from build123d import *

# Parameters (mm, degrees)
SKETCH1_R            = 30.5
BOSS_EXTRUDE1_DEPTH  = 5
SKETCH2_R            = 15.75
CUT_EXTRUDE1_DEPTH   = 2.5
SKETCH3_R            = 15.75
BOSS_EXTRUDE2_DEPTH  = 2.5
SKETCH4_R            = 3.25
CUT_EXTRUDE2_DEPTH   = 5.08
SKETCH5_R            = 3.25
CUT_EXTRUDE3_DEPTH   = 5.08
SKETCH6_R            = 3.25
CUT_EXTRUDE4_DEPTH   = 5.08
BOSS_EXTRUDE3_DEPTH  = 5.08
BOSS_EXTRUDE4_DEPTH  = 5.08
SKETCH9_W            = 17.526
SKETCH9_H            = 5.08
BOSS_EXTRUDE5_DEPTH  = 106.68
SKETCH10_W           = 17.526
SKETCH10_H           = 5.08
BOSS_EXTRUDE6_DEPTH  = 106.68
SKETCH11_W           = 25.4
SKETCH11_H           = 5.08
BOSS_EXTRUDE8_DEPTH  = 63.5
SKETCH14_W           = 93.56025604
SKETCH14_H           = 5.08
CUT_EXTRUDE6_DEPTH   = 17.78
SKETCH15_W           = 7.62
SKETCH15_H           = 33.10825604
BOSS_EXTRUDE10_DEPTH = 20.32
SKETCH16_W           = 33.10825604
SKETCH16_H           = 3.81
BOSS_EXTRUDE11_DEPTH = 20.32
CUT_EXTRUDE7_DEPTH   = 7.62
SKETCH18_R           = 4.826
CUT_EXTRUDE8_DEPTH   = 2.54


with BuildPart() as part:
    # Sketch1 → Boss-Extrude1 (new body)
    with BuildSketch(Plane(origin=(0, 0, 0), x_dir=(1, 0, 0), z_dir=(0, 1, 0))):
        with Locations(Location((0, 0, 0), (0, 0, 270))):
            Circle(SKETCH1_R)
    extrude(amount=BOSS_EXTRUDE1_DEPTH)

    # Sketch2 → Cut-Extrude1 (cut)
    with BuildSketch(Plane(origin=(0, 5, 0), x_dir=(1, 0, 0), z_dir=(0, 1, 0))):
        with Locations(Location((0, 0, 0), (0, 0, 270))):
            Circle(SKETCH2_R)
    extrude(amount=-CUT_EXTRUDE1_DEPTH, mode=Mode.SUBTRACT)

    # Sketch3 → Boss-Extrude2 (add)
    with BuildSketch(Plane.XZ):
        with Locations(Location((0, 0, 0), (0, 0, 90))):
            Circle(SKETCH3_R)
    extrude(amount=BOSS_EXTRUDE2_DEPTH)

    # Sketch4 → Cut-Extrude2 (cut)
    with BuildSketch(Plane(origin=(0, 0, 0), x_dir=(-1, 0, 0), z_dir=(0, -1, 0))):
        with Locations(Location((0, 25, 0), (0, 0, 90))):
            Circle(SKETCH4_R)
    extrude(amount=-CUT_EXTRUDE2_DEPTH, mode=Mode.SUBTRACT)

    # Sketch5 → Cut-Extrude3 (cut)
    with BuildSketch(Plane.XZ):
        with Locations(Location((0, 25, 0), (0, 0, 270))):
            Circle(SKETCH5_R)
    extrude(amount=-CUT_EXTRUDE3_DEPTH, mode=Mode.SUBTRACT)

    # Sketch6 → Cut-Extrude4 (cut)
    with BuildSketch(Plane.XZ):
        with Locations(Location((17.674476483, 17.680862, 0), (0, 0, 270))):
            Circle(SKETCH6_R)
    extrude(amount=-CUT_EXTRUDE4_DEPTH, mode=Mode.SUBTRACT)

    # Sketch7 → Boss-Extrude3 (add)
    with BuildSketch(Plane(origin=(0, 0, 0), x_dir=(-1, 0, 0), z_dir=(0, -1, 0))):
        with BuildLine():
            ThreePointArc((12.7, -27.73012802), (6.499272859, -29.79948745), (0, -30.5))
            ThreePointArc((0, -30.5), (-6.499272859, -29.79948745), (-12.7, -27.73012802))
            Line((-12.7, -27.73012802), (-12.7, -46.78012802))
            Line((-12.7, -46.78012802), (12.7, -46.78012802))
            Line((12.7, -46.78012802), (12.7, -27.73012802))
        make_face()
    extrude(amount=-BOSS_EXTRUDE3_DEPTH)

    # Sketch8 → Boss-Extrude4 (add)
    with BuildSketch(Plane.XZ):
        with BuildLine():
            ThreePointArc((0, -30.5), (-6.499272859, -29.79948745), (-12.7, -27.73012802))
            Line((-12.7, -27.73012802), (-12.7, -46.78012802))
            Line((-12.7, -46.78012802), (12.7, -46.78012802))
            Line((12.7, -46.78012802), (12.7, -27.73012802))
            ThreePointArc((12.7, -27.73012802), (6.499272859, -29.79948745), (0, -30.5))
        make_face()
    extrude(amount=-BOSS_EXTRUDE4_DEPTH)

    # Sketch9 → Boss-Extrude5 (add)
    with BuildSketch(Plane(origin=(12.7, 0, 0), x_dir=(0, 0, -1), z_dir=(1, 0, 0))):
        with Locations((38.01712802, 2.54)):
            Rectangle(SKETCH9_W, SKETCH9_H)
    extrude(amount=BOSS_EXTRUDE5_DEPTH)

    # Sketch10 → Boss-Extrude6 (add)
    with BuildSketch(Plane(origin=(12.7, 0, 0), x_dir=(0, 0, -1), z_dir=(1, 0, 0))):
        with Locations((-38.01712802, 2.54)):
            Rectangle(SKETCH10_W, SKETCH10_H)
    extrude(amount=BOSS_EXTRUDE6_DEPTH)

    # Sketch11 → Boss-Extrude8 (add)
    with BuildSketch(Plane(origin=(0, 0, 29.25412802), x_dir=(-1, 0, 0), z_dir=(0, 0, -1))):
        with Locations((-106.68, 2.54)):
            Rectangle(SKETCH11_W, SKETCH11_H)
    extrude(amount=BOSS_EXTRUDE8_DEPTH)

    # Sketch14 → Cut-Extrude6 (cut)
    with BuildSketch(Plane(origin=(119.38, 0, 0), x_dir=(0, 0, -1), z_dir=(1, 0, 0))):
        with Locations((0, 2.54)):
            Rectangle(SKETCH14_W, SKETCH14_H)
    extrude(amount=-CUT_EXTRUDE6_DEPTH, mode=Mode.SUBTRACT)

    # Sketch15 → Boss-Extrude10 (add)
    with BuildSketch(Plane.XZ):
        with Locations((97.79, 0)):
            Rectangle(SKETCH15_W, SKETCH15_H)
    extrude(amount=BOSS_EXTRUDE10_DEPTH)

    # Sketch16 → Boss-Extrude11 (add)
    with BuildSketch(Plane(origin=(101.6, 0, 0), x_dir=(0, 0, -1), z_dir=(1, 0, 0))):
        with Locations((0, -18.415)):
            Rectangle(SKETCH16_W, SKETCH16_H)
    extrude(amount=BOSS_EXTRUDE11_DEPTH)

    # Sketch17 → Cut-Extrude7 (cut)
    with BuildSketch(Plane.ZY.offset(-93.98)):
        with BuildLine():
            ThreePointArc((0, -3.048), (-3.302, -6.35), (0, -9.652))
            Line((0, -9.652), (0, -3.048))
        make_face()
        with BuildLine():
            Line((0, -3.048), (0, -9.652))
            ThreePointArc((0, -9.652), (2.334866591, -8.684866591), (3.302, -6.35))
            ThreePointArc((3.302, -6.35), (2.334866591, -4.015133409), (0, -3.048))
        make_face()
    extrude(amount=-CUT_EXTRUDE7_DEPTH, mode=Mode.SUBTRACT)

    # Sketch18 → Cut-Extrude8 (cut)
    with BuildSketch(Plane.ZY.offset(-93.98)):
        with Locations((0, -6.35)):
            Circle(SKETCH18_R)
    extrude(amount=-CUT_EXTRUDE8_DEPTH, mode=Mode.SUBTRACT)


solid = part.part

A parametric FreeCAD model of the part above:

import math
import FreeCAD as App
import Part
import Sketcher
Q = App.Units.Quantity

doc = App.newDocument("Part")
params = doc.addObject("Spreadsheet::Sheet", "Params")
for row, (alias, value) in enumerate([
    ("pad1_length", "5 mm"),
    ("pocket1_length", "2.5 mm"),
    ("pad2_length", "2.5 mm"),
    ("pocket2_length", "0.2 in"),
    ("pocket3_length", "0.2 in"),
    ("pocket4_length", "0.2 in"),
    ("sketch7_width", "1 in"),
    ("sketch7_height", "0.75 in"),
    ("pad3_length", "0.2 in"),
    ("sketch8_width", "1 in"),
    ("sketch8_height", "0.75 in"),
    ("pad4_length", "0.2 in"),
    ("sketch9_width", "0.2 in"),
    ("sketch9_height", "0.69 in"),
    ("pad5_length", "4.2 in"),
    ("sketch10_width", "0.2 in"),
    ("sketch10_height", "0.69 in"),
    ("pad6_length", "4.2 in"),
    ("sketch11_width", "1 in"),
    ("sketch11_height", "0.2 in"),
    ("pad7_length", "2.5 in"),
    ("sketch12_width", "0.2 in"),
    ("pocket5_length", "0.7 in"),
    ("sketch13_width", "0.3 in"),
    ("pad8_length", "0.8 in"),
    ("sketch14_width", "0.15 in"),
    ("pad9_length", "0.8 in"),
    ("sketch15_radius", "0.13 in"),
    ("pocket6_length", "0.3 in"),
    ("sketch16_diameter", "0.38 in"),
    ("pocket7_length", "0.1 in"),
], start=1):
    params.set(f"A{row}", alias)
    params.set(f"B{row}", "=" + value)
    params.setAlias(f"B{row}", alias)

body = doc.addObject("PartDesign::Body", "Body")

# Sketch on XZ plane
sketch1 = body.newObject("Sketcher::SketchObject", "Sketch")
sketch1.AttachmentSupport = (doc.getObject("XZ_Plane"), [""])
sketch1.MapMode = "FlatFace"
sketch1.addGeometry(Part.Circle(App.Vector(0, 0, 0), App.Vector(0, 0, 1), 30.5), False)
sketch1.addConstraint([
    Sketcher.Constraint("Coincident", 0, 3, -1, 1),
    Sketcher.Constraint("Diameter", 0, Q("61 mm")),
])
pad1 = body.newObject("PartDesign::Pad", "Pad")
pad1.Profile = sketch1
pad1.setExpression("Length", "Params.pad1_length")
pad1.Reversed = True

# Sketch on XZ plane
sketch2 = body.newObject("Sketcher::SketchObject", "Sketch001")
sketch2.AttachmentSupport = (doc.getObject("XZ_Plane"), [""])
sketch2.MapMode = "FlatFace"
sketch2.AttachmentOffset = App.Placement(App.Vector(0, 0, -5), App.Rotation())
sketch2.addGeometry(Part.Circle(App.Vector(0, 0, 0), App.Vector(0, 0, 1), 15.75), False)
sketch2.addConstraint([
    Sketcher.Constraint("Coincident", 0, 3, -1, 1),
    Sketcher.Constraint("Diameter", 0, Q("31.5 mm")),
])
pocket1 = body.newObject("PartDesign::Pocket", "Pocket")
pocket1.Profile = sketch2
pocket1.setExpression("Length", "Params.pocket1_length")
pocket1.Reversed = True

# Sketch on XZ plane
sketch3 = body.newObject("Sketcher::SketchObject", "Sketch002")
sketch3.AttachmentSupport = (doc.getObject("XZ_Plane"), [""])
sketch3.MapMode = "FlatFace"
sketch3.addGeometry(Part.Circle(App.Vector(0, 0, 0), App.Vector(0, 0, 1), 15.75), False)
sketch3.addConstraint([
    Sketcher.Constraint("Coincident", 0, 3, -1, 1),
    Sketcher.Constraint("Diameter", 0, Q("31.5 mm")),
])
pad2 = body.newObject("PartDesign::Pad", "Pad001")
pad2.Profile = sketch3
pad2.setExpression("Length", "Params.pad2_length")

# Sketch on XZ plane
sketch4 = body.newObject("Sketcher::SketchObject", "Sketch003")
sketch4.AttachmentSupport = (doc.getObject("XZ_Plane"), [""])
sketch4.MapMode = "FlatFace"
sketch4.addGeometry(Part.Circle(App.Vector(0, -25, 0), App.Vector(0, 0, 1), 3.25), False)
sketch4.addConstraint([
    Sketcher.Constraint("PointOnObject", 0, 3, -2),
    Sketcher.Constraint("Diameter", 0, Q("6.5 mm")),
    Sketcher.Constraint("DistanceY", 0, 3, -1, 1, Q("25 mm")),
])
pocket2 = body.newObject("PartDesign::Pocket", "Pocket001")
pocket2.Profile = sketch4
pocket2.setExpression("Length", "Params.pocket2_length")

# Sketch on XZ plane
sketch5 = body.newObject("Sketcher::SketchObject", "Sketch004")
sketch5.AttachmentSupport = (doc.getObject("XZ_Plane"), [""])
sketch5.MapMode = "FlatFace"
sketch5.addGeometry(Part.Circle(App.Vector(0, 25, 0), App.Vector(0, 0, 1), 3.25), False)
sketch5.addConstraint([
    Sketcher.Constraint("PointOnObject", 0, 3, -2),
    Sketcher.Constraint("Diameter", 0, Q("6.5 mm")),
    Sketcher.Constraint("DistanceY", -1, 1, 0, 3, Q("25 mm")),
])
pocket3 = body.newObject("PartDesign::Pocket", "Pocket002")
pocket3.Profile = sketch5
pocket3.setExpression("Length", "Params.pocket3_length")

# Sketch on XZ plane
sketch6 = body.newObject("Sketcher::SketchObject", "Sketch005")
sketch6.AttachmentSupport = (doc.getObject("XZ_Plane"), [""])
sketch6.MapMode = "FlatFace"
sketch6.addGeometry(Part.Circle(App.Vector(17.674476, 17.680862, 0), App.Vector(0, 0, 1), 3.25), False)
sketch6.addConstraint([
    Sketcher.Constraint("Diameter", 0, Q("6.5 mm")),
    Sketcher.Constraint("DistanceX", -1, 1, 0, 3, Q("17.674476 mm")),
    Sketcher.Constraint("DistanceY", -1, 1, 0, 3, Q("17.680862 mm")),
])
pocket4 = body.newObject("PartDesign::Pocket", "Pocket003")
pocket4.Profile = sketch6
pocket4.setExpression("Length", "Params.pocket4_length")

# Sketch on XZ plane
sketch7 = body.newObject("Sketcher::SketchObject", "Sketch006")
sketch7.AttachmentSupport = (doc.getObject("XZ_Plane"), [""])
sketch7.MapMode = "FlatFace"
sketch7.addGeometry([
    Part.ArcOfCircle(Part.Circle(App.Vector(0, 0, 0), App.Vector(0, 0, 1), 30.5), math.radians(90), math.radians(114.607099)),  # 0
    Part.ArcOfCircle(Part.Circle(App.Vector(0, 0, 0), App.Vector(0, 0, 1), 30.5), math.radians(65.392901), math.radians(90)),  # 1
    Part.LineSegment(App.Vector(12.7, 27.730128, 0), App.Vector(12.7, 46.780128, 0)),  # 2
    Part.LineSegment(App.Vector(12.7, 46.780128, 0), App.Vector(-12.7, 46.780128, 0)),  # 3
    Part.LineSegment(App.Vector(-12.7, 46.780128, 0), App.Vector(-12.7, 27.730128, 0)),  # 4
], False)
sketch7.addConstraint([
    Sketcher.Constraint("Tangent", 0, 1, 1, 2),
    Sketcher.Constraint("Coincident", 1, 1, 2, 1),
    Sketcher.Constraint("Coincident", 2, 2, 3, 1),
    Sketcher.Constraint("Coincident", 3, 2, 4, 1),
    Sketcher.Constraint("Coincident", 4, 2, 0, 2),
    Sketcher.Constraint("Vertical", 2),
    Sketcher.Constraint("Horizontal", 3),
    Sketcher.Constraint("Vertical", 4),
    Sketcher.Constraint("Coincident", 0, 3, -1, 1),
    Sketcher.Constraint("Equal", 0, 1),
    Sketcher.Constraint("PointOnObject", 0, 1, -2),
    Sketcher.Constraint("Horizontal", 1, 1, 4, 2),
    Sketcher.Constraint("DistanceX", 3, 2, 3, 1, Q("1 in")),
    Sketcher.Constraint("DistanceY", 2, 1, 2, 2, Q("0.75 in")),
    Sketcher.Constraint("Radius", 0, Q("30.5 mm")),
])
sketch7.setExpression("Constraints[12]", "Params.sketch7_width")
sketch7.setExpression("Constraints[13]", "Params.sketch7_height")
pad3 = body.newObject("PartDesign::Pad", "Pad002")
pad3.Profile = sketch7
pad3.setExpression("Length", "Params.pad3_length")
pad3.Reversed = True

# Sketch on XZ plane
sketch8 = body.newObject("Sketcher::SketchObject", "Sketch007")
sketch8.AttachmentSupport = (doc.getObject("XZ_Plane"), [""])
sketch8.MapMode = "FlatFace"
sketch8.addGeometry([
    Part.ArcOfCircle(Part.Circle(App.Vector(0, 0, 0), App.Vector(0, 0, 1), 30.5), math.radians(-114.607099), math.radians(-90)),  # 0
    Part.LineSegment(App.Vector(-12.7, -27.730128, 0), App.Vector(-12.7, -46.780128, 0)),  # 1
    Part.LineSegment(App.Vector(-12.7, -46.780128, 0), App.Vector(12.7, -46.780128, 0)),  # 2
    Part.LineSegment(App.Vector(12.7, -46.780128, 0), App.Vector(12.7, -27.730128, 0)),  # 3
    Part.ArcOfCircle(Part.Circle(App.Vector(0, 0, 0), App.Vector(0, 0, 1), 30.5), math.radians(-90), math.radians(-65.392901)),  # 4
], False)
sketch8.addConstraint([
    Sketcher.Constraint("Coincident", 0, 1, 1, 1),
    Sketcher.Constraint("Coincident", 1, 2, 2, 1),
    Sketcher.Constraint("Coincident", 2, 2, 3, 1),
    Sketcher.Constraint("Coincident", 3, 2, 4, 2),
    Sketcher.Constraint("Tangent", 4, 1, 0, 2),
    Sketcher.Constraint("Vertical", 1),
    Sketcher.Constraint("Horizontal", 2),
    Sketcher.Constraint("Vertical", 3),
    Sketcher.Constraint("Coincident", 0, 3, -1, 1),
    Sketcher.Constraint("Equal", 0, 4),
    Sketcher.Constraint("PointOnObject", 4, 1, -2),
    Sketcher.Constraint("Horizontal", 0, 1, 3, 2),
    Sketcher.Constraint("DistanceX", 2, 1, 2, 2, Q("1 in")),
    Sketcher.Constraint("DistanceY", 1, 2, 1, 1, Q("0.75 in")),
    Sketcher.Constraint("Radius", 0, Q("30.5 mm")),
])
sketch8.setExpression("Constraints[12]", "Params.sketch8_width")
sketch8.setExpression("Constraints[13]", "Params.sketch8_height")
pad4 = body.newObject("PartDesign::Pad", "Pad003")
pad4.Profile = sketch8
pad4.setExpression("Length", "Params.pad4_length")
pad4.Reversed = True

# Sketch on YZ plane
sketch9 = body.newObject("Sketcher::SketchObject", "Sketch008")
sketch9.AttachmentSupport = (doc.getObject("YZ_Plane"), [""])
sketch9.MapMode = "FlatFace"
sketch9.AttachmentOffset = App.Placement(App.Vector(0, 0, 0.5 * 25.4), App.Rotation())
sketch9.addGeometry([
    Part.LineSegment(App.Vector(5.08, -29.254128, 0), App.Vector(0, -29.254128, 0)),
    Part.LineSegment(App.Vector(0, -29.254128, 0), App.Vector(0, -46.780128, 0)),
    Part.LineSegment(App.Vector(0, -46.780128, 0), App.Vector(5.08, -46.780128, 0)),
    Part.LineSegment(App.Vector(5.08, -46.780128, 0), App.Vector(5.08, -29.254128, 0)),
], False)
sketch9.addConstraint([
    Sketcher.Constraint("Coincident", 0, 2, 1, 1),
    Sketcher.Constraint("Coincident", 1, 2, 2, 1),
    Sketcher.Constraint("Coincident", 2, 2, 3, 1),
    Sketcher.Constraint("Coincident", 3, 2, 0, 1),
    Sketcher.Constraint("Horizontal", 0),
    Sketcher.Constraint("Vertical", 1),
    Sketcher.Constraint("Horizontal", 2),
    Sketcher.Constraint("Vertical", 3),
    Sketcher.Constraint("PointOnObject", 0, 2, -2),
    Sketcher.Constraint("DistanceX", 0, 2, 0, 1, Q("0.2 in")),
    Sketcher.Constraint("DistanceY", 1, 2, 1, 1, Q("0.69 in")),
    Sketcher.Constraint("DistanceY", 0, 2, -1, 1, Q("29.254128 mm")),
])
sketch9.setExpression("Constraints[9]", "Params.sketch9_width")
sketch9.setExpression("Constraints[10]", "Params.sketch9_height")
pad5 = body.newObject("PartDesign::Pad", "Pad004")
pad5.Profile = sketch9
pad5.setExpression("Length", "Params.pad5_length")

# Sketch on YZ plane
sketch10 = body.newObject("Sketcher::SketchObject", "Sketch009")
sketch10.AttachmentSupport = (doc.getObject("YZ_Plane"), [""])
sketch10.MapMode = "FlatFace"
sketch10.AttachmentOffset = App.Placement(App.Vector(0, 0, 0.5 * 25.4), App.Rotation())
sketch10.addGeometry([
    Part.LineSegment(App.Vector(5.08, 46.780128, 0), App.Vector(0, 46.780128, 0)),
    Part.LineSegment(App.Vector(0, 46.780128, 0), App.Vector(0, 29.254128, 0)),
    Part.LineSegment(App.Vector(0, 29.254128, 0), App.Vector(5.08, 29.254128, 0)),
    Part.LineSegment(App.Vector(5.08, 29.254128, 0), App.Vector(5.08, 46.780128, 0)),
], False)
sketch10.addConstraint([
    Sketcher.Constraint("Coincident", 0, 2, 1, 1),
    Sketcher.Constraint("Coincident", 1, 2, 2, 1),
    Sketcher.Constraint("Coincident", 2, 2, 3, 1),
    Sketcher.Constraint("Coincident", 3, 2, 0, 1),
    Sketcher.Constraint("Horizontal", 0),
    Sketcher.Constraint("Vertical", 1),
    Sketcher.Constraint("Horizontal", 2),
    Sketcher.Constraint("Vertical", 3),
    Sketcher.Constraint("PointOnObject", 0, 2, -2),
    Sketcher.Constraint("DistanceX", 0, 2, 0, 1, Q("0.2 in")),
    Sketcher.Constraint("DistanceY", 1, 2, 1, 1, Q("0.69 in")),
    Sketcher.Constraint("DistanceY", -1, 1, 0, 2, Q("46.780128 mm")),
])
sketch10.setExpression("Constraints[9]", "Params.sketch10_width")
sketch10.setExpression("Constraints[10]", "Params.sketch10_height")
pad6 = body.newObject("PartDesign::Pad", "Pad005")
pad6.Profile = sketch10
pad6.setExpression("Length", "Params.pad6_length")

# Sketch on XY plane
sketch11 = body.newObject("Sketcher::SketchObject", "Sketch010")
sketch11.AttachmentSupport = (doc.getObject("XY_Plane"), [""])
sketch11.MapMode = "FlatFace"
sketch11.AttachmentOffset = App.Placement(App.Vector(0, 0, 29.254128), App.Rotation())
sketch11.addGeometry([
    Part.LineSegment(App.Vector(119.38, 5.08, 0), App.Vector(119.38, 0, 0)),
    Part.LineSegment(App.Vector(119.38, 0, 0), App.Vector(93.98, 0, 0)),
    Part.LineSegment(App.Vector(93.98, 0, 0), App.Vector(93.98, 5.08, 0)),
    Part.LineSegment(App.Vector(93.98, 5.08, 0), App.Vector(119.38, 5.08, 0)),
], False)
sketch11.addConstraint([
    Sketcher.Constraint("Coincident", 0, 2, 1, 1),
    Sketcher.Constraint("Coincident", 1, 2, 2, 1),
    Sketcher.Constraint("Coincident", 2, 2, 3, 1),
    Sketcher.Constraint("Coincident", 3, 2, 0, 1),
    Sketcher.Constraint("Vertical", 0),
    Sketcher.Constraint("Horizontal", 1),
    Sketcher.Constraint("Vertical", 2),
    Sketcher.Constraint("Horizontal", 3),
    Sketcher.Constraint("PointOnObject", 0, 2, -1),
    Sketcher.Constraint("DistanceX", 1, 2, 1, 1, Q("1 in")),
    Sketcher.Constraint("DistanceY", 0, 2, 0, 1, Q("0.2 in")),
    Sketcher.Constraint("DistanceX", -1, 1, 0, 2, Q("4.7 in")),
])
sketch11.setExpression("Constraints[9]", "Params.sketch11_width")
sketch11.setExpression("Constraints[10]", "Params.sketch11_height")
pad7 = body.newObject("PartDesign::Pad", "Pad006")
pad7.Profile = sketch11
pad7.setExpression("Length", "Params.pad7_length")
pad7.Reversed = True

# Sketch on YZ plane
sketch12 = body.newObject("Sketcher::SketchObject", "Sketch011")
sketch12.AttachmentSupport = (doc.getObject("YZ_Plane"), [""])
sketch12.MapMode = "FlatFace"
sketch12.AttachmentOffset = App.Placement(App.Vector(0, 0, 4.7 * 25.4), App.Rotation())
sketch12.addGeometry([
    Part.LineSegment(App.Vector(5.08, 46.780128, 0), App.Vector(0, 46.780128, 0)),
    Part.LineSegment(App.Vector(0, 46.780128, 0), App.Vector(0, -46.780128, 0)),
    Part.LineSegment(App.Vector(0, -46.780128, 0), App.Vector(5.08, -46.780128, 0)),
    Part.LineSegment(App.Vector(5.08, -46.780128, 0), App.Vector(5.08, 46.780128, 0)),
], False)
sketch12.addConstraint([
    Sketcher.Constraint("Coincident", 0, 2, 1, 1),
    Sketcher.Constraint("Coincident", 1, 2, 2, 1),
    Sketcher.Constraint("Coincident", 2, 2, 3, 1),
    Sketcher.Constraint("Coincident", 3, 2, 0, 1),
    Sketcher.Constraint("Horizontal", 0),
    Sketcher.Constraint("Vertical", 1),
    Sketcher.Constraint("Horizontal", 2),
    Sketcher.Constraint("Vertical", 3),
    Sketcher.Constraint("Symmetric", 0, 2, 1, 2, -1, 1),
    Sketcher.Constraint("DistanceX", 0, 2, 0, 1, Q("0.2 in")),
    Sketcher.Constraint("DistanceY", 1, 2, 1, 1, Q("93.560256 mm")),
])
sketch12.setExpression("Constraints[9]", "Params.sketch12_width")
pocket5 = body.newObject("PartDesign::Pocket", "Pocket004")
pocket5.Profile = sketch12
pocket5.setExpression("Length", "Params.pocket5_length")

# Sketch on XZ plane
sketch13 = body.newObject("Sketcher::SketchObject", "Sketch012")
sketch13.AttachmentSupport = (doc.getObject("XZ_Plane"), [""])
sketch13.MapMode = "FlatFace"
sketch13.addGeometry([
    Part.LineSegment(App.Vector(93.98, 16.554128, 0), App.Vector(93.98, -16.554128, 0)),
    Part.LineSegment(App.Vector(93.98, -16.554128, 0), App.Vector(101.6, -16.554128, 0)),
    Part.LineSegment(App.Vector(101.6, -16.554128, 0), App.Vector(101.6, 16.554128, 0)),
    Part.LineSegment(App.Vector(101.6, 16.554128, 0), App.Vector(93.98, 16.554128, 0)),
], False)
sketch13.addConstraint([
    Sketcher.Constraint("Coincident", 0, 2, 1, 1),
    Sketcher.Constraint("Coincident", 1, 2, 2, 1),
    Sketcher.Constraint("Coincident", 2, 2, 3, 1),
    Sketcher.Constraint("Coincident", 3, 2, 0, 1),
    Sketcher.Constraint("Vertical", 0),
    Sketcher.Constraint("Horizontal", 1),
    Sketcher.Constraint("Vertical", 2),
    Sketcher.Constraint("Horizontal", 3),
    Sketcher.Constraint("DistanceX", 1, 1, 1, 2, Q("0.3 in")),
    Sketcher.Constraint("DistanceX", -1, 1, 1, 2, Q("4 in")),
    Sketcher.Constraint("DistanceY", 0, 2, 0, 1, Q("33.108256 mm")),
    Sketcher.Constraint("DistanceY", 0, 2, -1, 1, Q("16.554128 mm")),
])
sketch13.setExpression("Constraints[8]", "Params.sketch13_width")
pad8 = body.newObject("PartDesign::Pad", "Pad007")
pad8.Profile = sketch13
pad8.setExpression("Length", "Params.pad8_length")

# Sketch on YZ plane
sketch14 = body.newObject("Sketcher::SketchObject", "Sketch013")
sketch14.AttachmentSupport = (doc.getObject("YZ_Plane"), [""])
sketch14.MapMode = "FlatFace"
sketch14.AttachmentOffset = App.Placement(App.Vector(0, 0, 4 * 25.4), App.Rotation())
sketch14.addGeometry([
    Part.LineSegment(App.Vector(-16.51, 16.554128, 0), App.Vector(-20.32, 16.554128, 0)),
    Part.LineSegment(App.Vector(-20.32, 16.554128, 0), App.Vector(-20.32, -16.554128, 0)),
    Part.LineSegment(App.Vector(-20.32, -16.554128, 0), App.Vector(-16.51, -16.554128, 0)),
    Part.LineSegment(App.Vector(-16.51, -16.554128, 0), App.Vector(-16.51, 16.554128, 0)),
], False)
sketch14.addConstraint([
    Sketcher.Constraint("Coincident", 0, 2, 1, 1),
    Sketcher.Constraint("Coincident", 1, 2, 2, 1),
    Sketcher.Constraint("Coincident", 2, 2, 3, 1),
    Sketcher.Constraint("Coincident", 3, 2, 0, 1),
    Sketcher.Constraint("Horizontal", 0),
    Sketcher.Constraint("Vertical", 1),
    Sketcher.Constraint("Horizontal", 2),
    Sketcher.Constraint("Vertical", 3),
    Sketcher.Constraint("DistanceX", 0, 2, 0, 1, Q("0.15 in")),
    Sketcher.Constraint("DistanceX", 0, 2, -1, 1, Q("0.8 in")),
    Sketcher.Constraint("DistanceY", 1, 2, 1, 1, Q("33.108256 mm")),
    Sketcher.Constraint("DistanceY", -1, 1, 0, 2, Q("16.554128 mm")),
])
sketch14.setExpression("Constraints[8]", "Params.sketch14_width")
pad9 = body.newObject("PartDesign::Pad", "Pad008")
pad9.Profile = sketch14
pad9.setExpression("Length", "Params.pad9_length")

# Sketch on YZ plane
sketch15 = body.newObject("Sketcher::SketchObject", "Sketch014")
sketch15.AttachmentSupport = (doc.getObject("YZ_Plane"), [""])
sketch15.MapMode = "FlatFace"
sketch15.AttachmentOffset = App.Placement(App.Vector(0, 0, 3.7 * 25.4), App.Rotation())
sketch15.addGeometry([
    Part.ArcOfCircle(Part.Circle(App.Vector(-6.35, 0, 0), App.Vector(0, 0, 1), 3.302), math.radians(180), math.radians(360)),
    Part.ArcOfCircle(Part.Circle(App.Vector(-6.35, 0, 0), App.Vector(0, 0, 1), 3.302), math.radians(90), math.radians(180)),
    Part.ArcOfCircle(Part.Circle(App.Vector(-6.35, 0, 0), App.Vector(0, 0, 1), 3.302), math.radians(0), math.radians(90)),
], False)
sketch15.addConstraint([
    Sketcher.Constraint("Tangent", 0, 1, 1, 2),
    Sketcher.Constraint("Tangent", 1, 1, 2, 2),
    Sketcher.Constraint("Tangent", 2, 1, 0, 2),
    Sketcher.Constraint("PointOnObject", 0, 3, -1),
    Sketcher.Constraint("PointOnObject", 0, 1, -1),
    Sketcher.Constraint("PointOnObject", 2, 1, -1),
    Sketcher.Constraint("Vertical", 2, 3, 1, 1),
    Sketcher.Constraint("Radius", 0, Q("0.13 in")),
    Sketcher.Constraint("DistanceX", 0, 3, -1, 1, Q("0.25 in")),
])
sketch15.setExpression("Constraints[7]", "Params.sketch15_radius")
pocket6 = body.newObject("PartDesign::Pocket", "Pocket005")
pocket6.Profile = sketch15
pocket6.setExpression("Length", "Params.pocket6_length")
pocket6.Reversed = True

# Sketch on YZ plane
sketch16 = body.newObject("Sketcher::SketchObject", "Sketch015")
sketch16.AttachmentSupport = (doc.getObject("YZ_Plane"), [""])
sketch16.MapMode = "FlatFace"
sketch16.AttachmentOffset = App.Placement(App.Vector(0, 0, 3.7 * 25.4), App.Rotation())
sketch16.addGeometry(Part.Circle(App.Vector(-6.35, 0, 0), App.Vector(0, 0, 1), 4.826), False)
sketch16.addConstraint([
    Sketcher.Constraint("PointOnObject", 0, 3, -1),
    Sketcher.Constraint("Diameter", 0, Q("0.38 in")),
    Sketcher.Constraint("DistanceX", 0, 3, -1, 1, Q("0.25 in")),
])
sketch16.setExpression("Constraints[1]", "Params.sketch16_diameter")
pocket7 = body.newObject("PartDesign::Pocket", "Pocket006")
pocket7.Profile = sketch16
pocket7.setExpression("Length", "Params.pocket7_length")
pocket7.Reversed = True

doc.recompute()
